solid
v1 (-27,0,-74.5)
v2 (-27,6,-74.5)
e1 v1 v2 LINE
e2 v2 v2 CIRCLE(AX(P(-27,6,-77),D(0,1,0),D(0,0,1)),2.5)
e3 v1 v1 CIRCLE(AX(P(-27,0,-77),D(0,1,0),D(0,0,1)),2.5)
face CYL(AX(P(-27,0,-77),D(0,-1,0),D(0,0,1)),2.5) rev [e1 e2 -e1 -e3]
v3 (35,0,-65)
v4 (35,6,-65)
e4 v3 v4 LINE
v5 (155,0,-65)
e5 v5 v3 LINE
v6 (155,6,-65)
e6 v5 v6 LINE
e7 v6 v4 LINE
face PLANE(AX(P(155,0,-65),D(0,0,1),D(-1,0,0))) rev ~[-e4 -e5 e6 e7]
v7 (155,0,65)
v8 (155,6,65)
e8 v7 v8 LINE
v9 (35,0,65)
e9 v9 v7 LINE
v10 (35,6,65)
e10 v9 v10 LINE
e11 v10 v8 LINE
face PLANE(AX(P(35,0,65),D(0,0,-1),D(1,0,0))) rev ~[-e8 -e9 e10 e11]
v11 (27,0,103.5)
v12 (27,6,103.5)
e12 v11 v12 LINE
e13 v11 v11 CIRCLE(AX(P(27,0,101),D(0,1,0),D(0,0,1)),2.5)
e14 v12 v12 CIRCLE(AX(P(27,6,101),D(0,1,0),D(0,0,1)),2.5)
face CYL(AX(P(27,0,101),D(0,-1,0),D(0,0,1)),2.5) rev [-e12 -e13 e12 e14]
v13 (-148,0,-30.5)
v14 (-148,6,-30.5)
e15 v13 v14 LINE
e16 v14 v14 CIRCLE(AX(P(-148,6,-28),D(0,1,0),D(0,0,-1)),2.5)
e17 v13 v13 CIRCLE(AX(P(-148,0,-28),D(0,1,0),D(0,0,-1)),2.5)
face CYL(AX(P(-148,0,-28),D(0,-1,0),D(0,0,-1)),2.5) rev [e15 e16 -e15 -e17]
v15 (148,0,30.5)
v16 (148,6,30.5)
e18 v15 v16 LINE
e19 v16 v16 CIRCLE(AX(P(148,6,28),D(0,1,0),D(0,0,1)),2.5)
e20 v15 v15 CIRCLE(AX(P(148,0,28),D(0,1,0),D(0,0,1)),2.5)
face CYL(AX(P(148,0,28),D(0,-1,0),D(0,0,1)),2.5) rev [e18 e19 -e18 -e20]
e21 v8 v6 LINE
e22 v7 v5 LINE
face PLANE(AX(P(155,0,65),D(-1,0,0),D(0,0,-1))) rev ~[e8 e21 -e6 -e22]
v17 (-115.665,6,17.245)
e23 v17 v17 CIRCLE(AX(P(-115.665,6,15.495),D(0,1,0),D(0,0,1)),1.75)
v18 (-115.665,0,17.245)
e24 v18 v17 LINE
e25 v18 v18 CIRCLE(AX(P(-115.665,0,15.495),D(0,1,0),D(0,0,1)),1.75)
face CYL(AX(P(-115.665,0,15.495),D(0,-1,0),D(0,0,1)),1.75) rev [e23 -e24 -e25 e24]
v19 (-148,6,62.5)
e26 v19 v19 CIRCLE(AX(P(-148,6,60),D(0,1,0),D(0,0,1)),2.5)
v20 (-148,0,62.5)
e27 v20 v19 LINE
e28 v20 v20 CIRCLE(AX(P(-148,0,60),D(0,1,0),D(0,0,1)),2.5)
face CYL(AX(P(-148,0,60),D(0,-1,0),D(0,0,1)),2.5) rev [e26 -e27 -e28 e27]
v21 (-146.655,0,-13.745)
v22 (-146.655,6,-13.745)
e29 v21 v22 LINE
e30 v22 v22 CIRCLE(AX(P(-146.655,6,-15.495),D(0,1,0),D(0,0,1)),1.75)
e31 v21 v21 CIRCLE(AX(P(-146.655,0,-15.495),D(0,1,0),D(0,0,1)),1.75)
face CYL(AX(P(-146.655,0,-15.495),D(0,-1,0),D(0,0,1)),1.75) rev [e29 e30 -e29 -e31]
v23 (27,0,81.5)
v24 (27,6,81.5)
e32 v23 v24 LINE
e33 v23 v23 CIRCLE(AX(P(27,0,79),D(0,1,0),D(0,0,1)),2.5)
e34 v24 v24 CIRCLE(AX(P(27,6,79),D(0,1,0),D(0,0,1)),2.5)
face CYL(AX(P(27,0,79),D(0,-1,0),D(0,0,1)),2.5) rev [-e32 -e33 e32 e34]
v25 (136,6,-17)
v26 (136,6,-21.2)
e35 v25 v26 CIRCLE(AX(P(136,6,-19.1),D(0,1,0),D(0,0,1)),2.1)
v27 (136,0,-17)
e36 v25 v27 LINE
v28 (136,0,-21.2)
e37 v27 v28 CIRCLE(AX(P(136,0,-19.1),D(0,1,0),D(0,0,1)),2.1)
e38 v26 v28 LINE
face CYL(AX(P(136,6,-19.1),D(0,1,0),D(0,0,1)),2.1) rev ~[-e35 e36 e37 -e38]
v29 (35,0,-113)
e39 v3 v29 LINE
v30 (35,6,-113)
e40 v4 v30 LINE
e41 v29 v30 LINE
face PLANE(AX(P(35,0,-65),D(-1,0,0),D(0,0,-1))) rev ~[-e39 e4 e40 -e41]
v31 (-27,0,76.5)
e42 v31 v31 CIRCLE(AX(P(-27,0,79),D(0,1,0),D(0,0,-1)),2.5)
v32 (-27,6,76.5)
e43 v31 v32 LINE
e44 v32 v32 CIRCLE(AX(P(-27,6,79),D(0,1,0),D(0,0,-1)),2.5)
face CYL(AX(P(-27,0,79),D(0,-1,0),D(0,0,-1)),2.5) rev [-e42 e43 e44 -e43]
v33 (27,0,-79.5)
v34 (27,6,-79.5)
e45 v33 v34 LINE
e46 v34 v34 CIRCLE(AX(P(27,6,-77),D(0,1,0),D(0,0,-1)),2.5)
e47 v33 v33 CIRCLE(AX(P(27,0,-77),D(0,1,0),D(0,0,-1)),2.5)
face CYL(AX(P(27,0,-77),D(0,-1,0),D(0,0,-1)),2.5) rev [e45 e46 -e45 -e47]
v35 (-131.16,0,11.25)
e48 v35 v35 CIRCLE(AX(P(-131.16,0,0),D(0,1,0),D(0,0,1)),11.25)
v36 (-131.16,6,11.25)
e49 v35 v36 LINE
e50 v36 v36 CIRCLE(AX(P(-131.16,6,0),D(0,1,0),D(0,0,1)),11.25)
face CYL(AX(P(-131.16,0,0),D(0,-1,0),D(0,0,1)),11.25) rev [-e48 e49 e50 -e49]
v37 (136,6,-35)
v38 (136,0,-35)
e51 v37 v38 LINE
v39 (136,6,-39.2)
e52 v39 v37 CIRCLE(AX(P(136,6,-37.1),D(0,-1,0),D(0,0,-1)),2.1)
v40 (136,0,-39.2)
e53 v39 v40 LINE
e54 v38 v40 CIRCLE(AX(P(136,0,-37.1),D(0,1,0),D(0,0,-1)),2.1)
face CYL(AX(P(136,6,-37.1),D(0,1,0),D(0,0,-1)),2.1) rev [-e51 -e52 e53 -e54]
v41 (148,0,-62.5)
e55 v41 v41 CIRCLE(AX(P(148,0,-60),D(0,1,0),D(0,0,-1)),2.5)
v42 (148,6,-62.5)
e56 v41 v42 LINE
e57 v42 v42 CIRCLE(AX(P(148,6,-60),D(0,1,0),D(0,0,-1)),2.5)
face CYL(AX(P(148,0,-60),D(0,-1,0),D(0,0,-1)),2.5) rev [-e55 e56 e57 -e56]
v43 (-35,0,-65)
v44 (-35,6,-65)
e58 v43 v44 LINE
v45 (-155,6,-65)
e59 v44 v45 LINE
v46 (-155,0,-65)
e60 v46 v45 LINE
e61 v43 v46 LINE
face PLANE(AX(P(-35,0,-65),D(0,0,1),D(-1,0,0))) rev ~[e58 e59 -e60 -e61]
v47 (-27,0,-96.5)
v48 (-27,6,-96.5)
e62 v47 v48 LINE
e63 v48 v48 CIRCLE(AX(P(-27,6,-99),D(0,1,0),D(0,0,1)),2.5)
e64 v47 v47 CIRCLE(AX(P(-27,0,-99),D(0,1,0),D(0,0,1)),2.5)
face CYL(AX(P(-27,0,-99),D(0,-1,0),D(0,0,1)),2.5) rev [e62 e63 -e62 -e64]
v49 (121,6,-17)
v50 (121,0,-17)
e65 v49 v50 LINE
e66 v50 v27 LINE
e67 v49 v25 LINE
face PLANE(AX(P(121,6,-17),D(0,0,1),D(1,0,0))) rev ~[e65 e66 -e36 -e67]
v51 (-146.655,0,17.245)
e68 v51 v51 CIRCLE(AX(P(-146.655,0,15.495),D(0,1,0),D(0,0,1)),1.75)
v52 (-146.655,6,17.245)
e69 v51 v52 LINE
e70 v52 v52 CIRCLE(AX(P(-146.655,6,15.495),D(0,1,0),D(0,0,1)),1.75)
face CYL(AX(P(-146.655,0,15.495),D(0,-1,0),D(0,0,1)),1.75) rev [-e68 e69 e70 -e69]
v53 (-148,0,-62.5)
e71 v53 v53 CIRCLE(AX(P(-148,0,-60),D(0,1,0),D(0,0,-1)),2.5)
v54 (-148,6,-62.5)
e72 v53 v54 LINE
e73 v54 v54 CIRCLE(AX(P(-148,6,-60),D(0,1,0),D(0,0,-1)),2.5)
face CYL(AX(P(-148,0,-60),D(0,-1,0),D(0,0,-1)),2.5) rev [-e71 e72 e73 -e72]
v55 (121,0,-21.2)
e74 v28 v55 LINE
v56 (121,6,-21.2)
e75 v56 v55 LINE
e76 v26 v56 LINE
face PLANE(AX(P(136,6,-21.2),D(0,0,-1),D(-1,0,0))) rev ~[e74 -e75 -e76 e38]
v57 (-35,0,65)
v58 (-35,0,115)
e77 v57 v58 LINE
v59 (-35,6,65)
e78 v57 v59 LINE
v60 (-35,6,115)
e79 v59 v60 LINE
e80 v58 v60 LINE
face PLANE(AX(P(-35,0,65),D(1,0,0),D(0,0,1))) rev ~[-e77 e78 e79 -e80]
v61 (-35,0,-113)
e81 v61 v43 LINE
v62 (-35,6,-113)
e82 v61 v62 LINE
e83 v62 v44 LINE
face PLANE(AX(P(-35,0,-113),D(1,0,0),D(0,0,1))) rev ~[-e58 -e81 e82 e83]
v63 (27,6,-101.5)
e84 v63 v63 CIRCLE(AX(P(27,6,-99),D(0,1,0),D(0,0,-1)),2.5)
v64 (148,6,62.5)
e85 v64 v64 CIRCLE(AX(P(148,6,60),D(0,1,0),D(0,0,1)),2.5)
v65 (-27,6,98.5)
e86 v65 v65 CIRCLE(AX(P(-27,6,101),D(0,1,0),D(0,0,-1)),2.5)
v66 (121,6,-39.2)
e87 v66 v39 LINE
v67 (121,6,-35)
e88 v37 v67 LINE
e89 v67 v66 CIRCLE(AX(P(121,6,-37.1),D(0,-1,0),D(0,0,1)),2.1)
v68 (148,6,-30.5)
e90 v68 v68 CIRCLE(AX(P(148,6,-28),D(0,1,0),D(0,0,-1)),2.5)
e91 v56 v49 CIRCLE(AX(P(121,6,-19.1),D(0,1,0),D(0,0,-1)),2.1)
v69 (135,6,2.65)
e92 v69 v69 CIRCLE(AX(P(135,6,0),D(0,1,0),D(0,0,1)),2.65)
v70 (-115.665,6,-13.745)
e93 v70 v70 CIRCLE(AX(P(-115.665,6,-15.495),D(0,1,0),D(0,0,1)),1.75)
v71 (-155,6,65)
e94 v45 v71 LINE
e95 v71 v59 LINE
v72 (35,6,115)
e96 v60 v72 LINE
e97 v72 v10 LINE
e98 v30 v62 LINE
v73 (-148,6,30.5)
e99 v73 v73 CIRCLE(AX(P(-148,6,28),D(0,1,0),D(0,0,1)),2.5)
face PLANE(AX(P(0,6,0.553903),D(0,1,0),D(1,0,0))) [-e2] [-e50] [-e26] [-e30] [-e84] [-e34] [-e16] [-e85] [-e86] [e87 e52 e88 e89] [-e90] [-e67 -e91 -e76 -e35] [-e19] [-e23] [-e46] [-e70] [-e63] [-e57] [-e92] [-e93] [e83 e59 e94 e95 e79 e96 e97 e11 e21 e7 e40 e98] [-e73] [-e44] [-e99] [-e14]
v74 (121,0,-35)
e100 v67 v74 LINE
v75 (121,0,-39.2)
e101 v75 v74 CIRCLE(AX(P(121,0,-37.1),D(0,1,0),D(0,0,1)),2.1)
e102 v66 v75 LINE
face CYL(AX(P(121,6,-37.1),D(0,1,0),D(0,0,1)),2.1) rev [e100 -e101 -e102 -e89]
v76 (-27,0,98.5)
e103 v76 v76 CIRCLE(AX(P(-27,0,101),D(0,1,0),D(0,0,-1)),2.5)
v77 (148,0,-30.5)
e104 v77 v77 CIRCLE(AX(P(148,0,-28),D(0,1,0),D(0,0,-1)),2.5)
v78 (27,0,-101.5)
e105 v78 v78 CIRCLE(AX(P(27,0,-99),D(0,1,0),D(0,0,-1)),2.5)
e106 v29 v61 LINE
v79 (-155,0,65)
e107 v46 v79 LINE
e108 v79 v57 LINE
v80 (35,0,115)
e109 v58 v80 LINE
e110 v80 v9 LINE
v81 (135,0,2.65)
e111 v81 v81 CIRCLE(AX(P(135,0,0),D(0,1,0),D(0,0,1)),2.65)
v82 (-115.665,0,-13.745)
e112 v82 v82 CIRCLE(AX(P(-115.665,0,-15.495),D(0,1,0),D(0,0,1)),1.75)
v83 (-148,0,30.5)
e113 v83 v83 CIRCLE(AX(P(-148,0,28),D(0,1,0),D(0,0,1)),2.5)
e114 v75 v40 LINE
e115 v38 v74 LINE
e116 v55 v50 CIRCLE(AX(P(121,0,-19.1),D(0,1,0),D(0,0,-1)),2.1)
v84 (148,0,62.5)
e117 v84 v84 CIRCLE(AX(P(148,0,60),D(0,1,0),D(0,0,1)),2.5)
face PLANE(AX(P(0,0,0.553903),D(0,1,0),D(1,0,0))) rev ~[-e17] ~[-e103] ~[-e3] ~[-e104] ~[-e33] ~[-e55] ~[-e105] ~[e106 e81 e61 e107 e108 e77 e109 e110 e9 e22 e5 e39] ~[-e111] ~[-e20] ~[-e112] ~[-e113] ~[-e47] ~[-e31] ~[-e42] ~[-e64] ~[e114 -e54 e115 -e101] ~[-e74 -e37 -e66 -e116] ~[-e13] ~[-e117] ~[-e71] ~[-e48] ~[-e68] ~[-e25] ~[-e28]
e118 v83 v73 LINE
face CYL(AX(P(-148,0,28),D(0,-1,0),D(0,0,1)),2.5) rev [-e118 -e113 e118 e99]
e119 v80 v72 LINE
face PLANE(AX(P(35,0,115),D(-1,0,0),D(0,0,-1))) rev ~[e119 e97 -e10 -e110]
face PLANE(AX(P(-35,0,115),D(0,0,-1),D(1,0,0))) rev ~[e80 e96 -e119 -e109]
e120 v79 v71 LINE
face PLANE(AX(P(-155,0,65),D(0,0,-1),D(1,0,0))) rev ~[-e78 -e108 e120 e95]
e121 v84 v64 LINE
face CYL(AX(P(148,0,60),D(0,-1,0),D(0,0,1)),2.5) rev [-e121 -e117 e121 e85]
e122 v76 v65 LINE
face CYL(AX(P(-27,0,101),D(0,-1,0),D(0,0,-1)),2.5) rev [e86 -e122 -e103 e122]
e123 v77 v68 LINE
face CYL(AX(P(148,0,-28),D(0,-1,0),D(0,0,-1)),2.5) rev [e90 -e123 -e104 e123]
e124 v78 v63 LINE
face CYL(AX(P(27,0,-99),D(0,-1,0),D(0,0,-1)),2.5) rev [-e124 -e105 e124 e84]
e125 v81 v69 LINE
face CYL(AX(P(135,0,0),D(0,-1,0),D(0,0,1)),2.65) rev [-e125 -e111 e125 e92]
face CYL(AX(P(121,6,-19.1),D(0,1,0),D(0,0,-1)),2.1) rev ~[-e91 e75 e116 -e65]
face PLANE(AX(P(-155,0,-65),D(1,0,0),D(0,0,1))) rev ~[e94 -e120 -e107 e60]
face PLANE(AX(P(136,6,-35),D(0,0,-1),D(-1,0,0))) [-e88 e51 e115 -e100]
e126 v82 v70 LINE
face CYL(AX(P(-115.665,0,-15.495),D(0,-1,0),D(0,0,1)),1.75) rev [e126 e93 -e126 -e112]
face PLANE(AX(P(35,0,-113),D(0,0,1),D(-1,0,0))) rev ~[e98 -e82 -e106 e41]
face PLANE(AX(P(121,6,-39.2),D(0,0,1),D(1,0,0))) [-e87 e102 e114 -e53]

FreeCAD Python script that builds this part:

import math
import FreeCAD as App
import Part
import Sketcher

V = App.Vector
Q = App.Units.Quantity

doc = App.newDocument("Part")
body = doc.addObject("PartDesign::Body", "Body")

# Sketch on XZ plane
sketch1 = doc.addObject("Sketcher::SketchObject", "Sketch")
body.addObject(sketch1)
sketch1.AttachmentSupport = (doc.XZ_Plane, [""])
sketch1.MapMode = "FlatFace"
sketch1.addGeometry(Part.LineSegment(V(-155, 65, 0), V(-35, 65, 0)), False)
sketch1.addGeometry(Part.LineSegment(V(-35, 65, 0), V(-35, 115, 0)), False)
sketch1.addGeometry(Part.LineSegment(V(-35, 115, 0), V(35, 115, 0)), False)
sketch1.addGeometry(Part.LineSegment(V(35, 115, 0), V(35, 65, 0)), False)
sketch1.addGeometry(Part.LineSegment(V(35, 65, 0), V(155, 65, 0)), False)
sketch1.addGeometry(Part.LineSegment(V(155, 65, 0), V(155, -65, 0)), False)
sketch1.addGeometry(Part.LineSegment(V(155, -65, 0), V(35, -65, 0)), False)
sketch1.addGeometry(Part.LineSegment(V(35, -65, 0), V(35, -113, 0)), False)
sketch1.addGeometry(Part.LineSegment(V(35, -113, 0), V(-35, -113, 0)), False)
sketch1.addGeometry(Part.LineSegment(V(-35, -113, 0), V(-35, -65, 0)), False)
sketch1.addGeometry(Part.LineSegment(V(-35, -65, 0), V(-155, -65, 0)), False)
sketch1.addGeometry(Part.LineSegment(V(-155, -65, 0), V(-155, 65, 0)), False)
sketch1.addGeometry(Part.Circle(V(-148, 60, 0), V(0, 0, 1), 2.5), False)
sketch1.addGeometry(Part.Circle(V(-27, 101, 0), V(0, 0, 1), 2.5), False)
sketch1.addGeometry(Part.Circle(V(-27, 79, 0), V(0, 0, 1), 2.5), False)
sketch1.addGeometry(Part.Circle(V(-148, 28, 0), V(0, 0, 1), 2.5), False)
sketch1.addGeometry(Part.Circle(V(-146.655, 15.495, 0), V(0, 0, 1), 1.75), False)
sketch1.addGeometry(Part.Circle(V(-115.665, 15.495, 0), V(0, 0, 1), 1.75), False)
sketch1.addGeometry(Part.Circle(V(27, 101, 0), V(0, 0, 1), 2.5), False)
sketch1.addGeometry(Part.Circle(V(27, 79, 0), V(0, 0, 1), 2.5), False)
sketch1.addGeometry(Part.Circle(V(148, 60, 0), V(0, 0, 1), 2.5), False)
sketch1.addGeometry(Part.Circle(V(148, 28, 0), V(0, 0, 1), 2.5), False)
sketch1.addGeometry(Part.Circle(V(-131.16, 0, 0), V(0, 0, 1), 11.25), False)
sketch1.addGeometry(Part.Circle(V(-146.655, -15.495, 0), V(0, 0, 1), 1.75), False)
sketch1.addGeometry(Part.Circle(V(-115.665, -15.495, 0), V(0, 0, 1), 1.75), False)
sketch1.addGeometry(Part.Circle(V(-148, -28, 0), V(0, 0, 1), 2.5), False)
sketch1.addGeometry(Part.Circle(V(-148, -60, 0), V(0, 0, 1), 2.5), False)
sketch1.addGeometry(Part.Circle(V(-27, -77, 0), V(0, 0, 1), 2.5), False)
sketch1.addGeometry(Part.Circle(V(-27, -99, 0), V(0, 0, 1), 2.5), False)
sketch1.addGeometry(Part.Circle(V(135, 0, 0), V(0, 0, 1), 2.65), False)
sketch1.addGeometry(Part.Circle(V(148, -28, 0), V(0, 0, 1), 2.5), False)
sketch1.addGeometry(Part.Circle(V(27, -77, 0), V(0, 0, 1), 2.5), False)
sketch1.addGeometry(Part.Circle(V(27, -99, 0), V(0, 0, 1), 2.5), False)
sketch1.addGeometry(Part.Circle(V(148, -60, 0), V(0, 0, 1), 2.5), False)
sketch1.addConstraint(Sketcher.Constraint("Coincident", 0, 2, 1, 1))
sketch1.addConstraint(Sketcher.Constraint("Coincident", 1, 2, 2, 1))
sketch1.addConstraint(Sketcher.Constraint("Coincident", 2, 2, 3, 1))
sketch1.addConstraint(Sketcher.Constraint("Coincident", 3, 2, 4, 1))
sketch1.addConstraint(Sketcher.Constraint("Coincident", 4, 2, 5, 1))
sketch1.addConstraint(Sketcher.Constraint("Coincident", 5, 2, 6, 1))
sketch1.addConstraint(Sketcher.Constraint("Coincident", 6, 2, 7, 1))
sketch1.addConstraint(Sketcher.Constraint("Coincident", 7, 2, 8, 1))
sketch1.addConstraint(Sketcher.Constraint("Coincident", 8, 2, 9, 1))
sketch1.addConstraint(Sketcher.Constraint("Coincident", 9, 2, 10, 1))
sketch1.addConstraint(Sketcher.Constraint("Coincident", 10, 2, 11, 1))
sketch1.addConstraint(Sketcher.Constraint("Coincident", 11, 2, 0, 1))
sketch1.addConstraint(Sketcher.Constraint("Horizontal", 0))
sketch1.addConstraint(Sketcher.Constraint("Vertical", 1))
sketch1.addConstraint(Sketcher.Constraint("Horizontal", 2))
sketch1.addConstraint(Sketcher.Constraint("Vertical", 3))
sketch1.addConstraint(Sketcher.Constraint("Horizontal", 4))
sketch1.addConstraint(Sketcher.Constraint("Vertical", 5))
sketch1.addConstraint(Sketcher.Constraint("Horizontal", 6))
sketch1.addConstraint(Sketcher.Constraint("Vertical", 7))
sketch1.addConstraint(Sketcher.Constraint("Horizontal", 8))
sketch1.addConstraint(Sketcher.Constraint("Vertical", 9))
sketch1.addConstraint(Sketcher.Constraint("Horizontal", 10))
sketch1.addConstraint(Sketcher.Constraint("Vertical", 11))
sketch1.addConstraint(Sketcher.Constraint("Equal", 12, 13))
sketch1.addConstraint(Sketcher.Constraint("Equal", 13, 14))
sketch1.addConstraint(Sketcher.Constraint("Equal", 14, 15))
sketch1.addConstraint(Sketcher.Constraint("Equal", 16, 17))
sketch1.addConstraint(Sketcher.Constraint("Equal", 15, 18))
sketch1.addConstraint(Sketcher.Constraint("Equal", 18, 19))
sketch1.addConstraint(Sketcher.Constraint("Equal", 19, 20))
sketch1.addConstraint(Sketcher.Constraint("Equal", 20, 21))
sketch1.addConstraint(Sketcher.Constraint("Equal", 17, 23))
sketch1.addConstraint(Sketcher.Constraint("Equal", 23, 24))
sketch1.addConstraint(Sketcher.Constraint("Equal", 21, 25))
sketch1.addConstraint(Sketcher.Constraint("Equal", 25, 26))
sketch1.addConstraint(Sketcher.Constraint("Equal", 26, 27))
sketch1.addConstraint(Sketcher.Constraint("Equal", 27, 28))
sketch1.addConstraint(Sketcher.Constraint("Equal", 28, 30))
sketch1.addConstraint(Sketcher.Constraint("Equal", 30, 31))
sketch1.addConstraint(Sketcher.Constraint("Equal", 31, 32))
sketch1.addConstraint(Sketcher.Constraint("Equal", 32, 33))
sketch1.addConstraint(Sketcher.Constraint("Symmetric", 21, 3, 25, 3, -1, 1))
sketch1.addConstraint(Sketcher.Constraint("Symmetric", 20, 3, 26, 3, -1, 1))
sketch1.addConstraint(Sketcher.Constraint("Symmetric", 15, 3, 30, 3, -1, 1))
sketch1.addConstraint(Sketcher.Constraint("Symmetric", 12, 3, 33, 3, -1, 1))
sketch1.addConstraint(Sketcher.Constraint("Symmetric", 0, 2, 6, 2, -1, 1))
sketch1.addConstraint(Sketcher.Constraint("Symmetric", 3, 2, 9, 2, -1, 1))
sketch1.addConstraint(Sketcher.Constraint("Symmetric", 13, 3, 18, 3, -2))
sketch1.addConstraint(Sketcher.Constraint("Symmetric", 14, 3, 19, 3, -2))
sketch1.addConstraint(Sketcher.Constraint("Symmetric", 12, 3, 20, 3, -2))
sketch1.addConstraint(Sketcher.Constraint("Symmetric", 15, 3, 21, 3, -2))
sketch1.addConstraint(Sketcher.Constraint("Symmetric", 27, 3, 31, 3, -2))
sketch1.addConstraint(Sketcher.Constraint("Symmetric", 28, 3, 32, 3, -2))
sketch1.addConstraint(Sketcher.Constraint("Symmetric", 0, 2, 3, 2, -2))
sketch1.addConstraint(Sketcher.Constraint("Symmetric", 16, 3, 23, 3, -1))
sketch1.addConstraint(Sketcher.Constraint("Symmetric", 17, 3, 24, 3, -1))
sketch1.addConstraint(Sketcher.Constraint("PointOnObject", 22, 3, -1))
sketch1.addConstraint(Sketcher.Constraint("PointOnObject", 29, 3, -1))
sketch1.addConstraint(Sketcher.Constraint("Horizontal", 16, 3, 17, 3))
sketch1.addConstraint(Sketcher.Constraint("Vertical", 13, 3, 14, 3))
sketch1.addConstraint(Sketcher.Constraint("Vertical", 12, 3, 15, 3))
sketch1.addConstraint(Sketcher.Constraint("Vertical", 14, 3, 27, 3))
sketch1.addConstraint(Sketcher.Constraint("Vertical", 27, 3, 28, 3))
sketch1.addConstraint(Sketcher.Constraint("Equal", 0, 4))
sketch1.addConstraint(Sketcher.Constraint("Diameter", 12, Q("5 mm")))
sketch1.addConstraint(Sketcher.Constraint("Diameter", 16, Q("3.5 mm")))
sketch1.addConstraint(Sketcher.Constraint("Diameter", 22, Q("22.5 mm")))
sketch1.addConstraint(Sketcher.Constraint("Diameter", 29, Q("5.3 mm")))
sketch1.addConstraint(Sketcher.Constraint("DistanceX", 0, 1, 0, 2, Q("120 mm")))
sketch1.addConstraint(Sketcher.Constraint("DistanceX", 2, 1, 2, 2, Q("70 mm")))
sketch1.addConstraint(Sketcher.Constraint("DistanceY", 1, 1, 1, 2, Q("50 mm")))
sketch1.addConstraint(Sketcher.Constraint("DistanceY", 5, 2, 5, 1, Q("130 mm")))
sketch1.addConstraint(Sketcher.Constraint("DistanceY", 7, 2, 7, 1, Q("48 mm")))
sketch1.addConstraint(Sketcher.Constraint("DistanceX", 12, 3, -1, 1, Q("148 mm")))
sketch1.addConstraint(Sketcher.Constraint("DistanceY", -1, 1, 12, 3, Q("60 mm")))
sketch1.addConstraint(Sketcher.Constraint("DistanceX", 13, 3, -1, 1, Q("27 mm")))
sketch1.addConstraint(Sketcher.Constraint("DistanceY", -1, 1, 13, 3, Q("101 mm")))
sketch1.addConstraint(Sketcher.Constraint("DistanceY", -1, 1, 14, 3, Q("79 mm")))
sketch1.addConstraint(Sketcher.Constraint("DistanceY", -1, 1, 15, 3, Q("28 mm")))
sketch1.addConstraint(Sketcher.Constraint("DistanceY", 27, 3, -1, 1, Q("77 mm")))
sketch1.addConstraint(Sketcher.Constraint("DistanceY", 28, 3, -1, 1, Q("99 mm")))
sketch1.addConstraint(Sketcher.Constraint("DistanceX", -1, 1, 29, 3, Q("135 mm")))
sketch1.addConstraint(Sketcher.Constraint("DistanceX", 22, 3, -1, 1, Q("131.16 mm")))
sketch1.addConstraint(Sketcher.Constraint("DistanceX", 16, 3, 17, 3, Q("30.99 mm")))
sketch1.addConstraint(Sketcher.Constraint("DistanceY", 23, 3, 16, 3, Q("30.99 mm")))
sketch1.addConstraint(Sketcher.Constraint("DistanceX", 16, 3, -1, 1, Q("146.655 mm")))
pad1 = doc.addObject("PartDesign::Pad", "Pad")
body.addObject(pad1)
pad1.Profile = sketch1
pad1.Length = 6
pad1.Reversed = True

# Sketch on XZ plane
sketch2 = doc.addObject("Sketcher::SketchObject", "Sketch001")
body.addObject(sketch2)
sketch2.AttachmentSupport = (doc.XZ_Plane, [""])
sketch2.MapMode = "FlatFace"
sketch2.AttachmentOffset = App.Placement(V(0, 0, -6), App.Rotation())
sketch2.addGeometry(Part.LineSegment(V(121, -35, 0), V(136, -35, 0)), False)
sketch2.addGeometry(Part.ArcOfCircle(Part.Circle(V(136, -37.1, 0), V(0, 0, 1), 2.1), math.radians(-90), math.radians(90)), False)
sketch2.addGeometry(Part.LineSegment(V(136, -39.2, 0), V(121, -39.2, 0)), False)
sketch2.addGeometry(Part.ArcOfCircle(Part.Circle(V(121, -37.1, 0), V(0, 0, 1), 2.1), math.radians(90), math.radians(270)), False)
sketch2.addGeometry(Part.LineSegment(V(136, -21.2, 0), V(121, -21.2, 0)), False)
sketch2.addGeometry(Part.ArcOfCircle(Part.Circle(V(121, -19.1, 0), V(0, 0, 1), 2.1), math.radians(90), math.radians(270)), False)
sketch2.addGeometry(Part.LineSegment(V(121, -17, 0), V(136, -17, 0)), False)
sketch2.addGeometry(Part.ArcOfCircle(Part.Circle(V(136, -19.1, 0), V(0, 0, 1), 2.1), math.radians(-90), math.radians(90)), False)
sketch2.addConstraint(Sketcher.Constraint("Tangent", 0, 2, 1, 2))
sketch2.addConstraint(Sketcher.Constraint("Tangent", 1, 1, 2, 1))
sketch2.addConstraint(Sketcher.Constraint("Tangent", 2, 2, 3, 2))
sketch2.addConstraint(Sketcher.Constraint("Tangent", 3, 1, 0, 1))
sketch2.addConstraint(Sketcher.Constraint("Tangent", 4, 2, 5, 2))
sketch2.addConstraint(Sketcher.Constraint("Tangent", 5, 1, 6, 1))
sketch2.addConstraint(Sketcher.Constraint("Tangent", 6, 2, 7, 2))
sketch2.addConstraint(Sketcher.Constraint("Tangent", 7, 1, 4, 1))
sketch2.addConstraint(Sketcher.Constraint("Horizontal", 0))
sketch2.addConstraint(Sketcher.Constraint("Horizontal", 2))
sketch2.addConstraint(Sketcher.Constraint("Horizontal", 4))
sketch2.addConstraint(Sketcher.Constraint("Horizontal", 6))
sketch2.addConstraint(Sketcher.Constraint("Equal", 3, 5))
sketch2.addConstraint(Sketcher.Constraint("Vertical", 3, 3, 5, 3))
sketch2.addConstraint(Sketcher.Constraint("Vertical", 1, 3, 7, 3))
sketch2.addConstraint(Sketcher.Constraint("Radius", 1, Q("2.1 mm")))
sketch2.addConstraint(Sketcher.Constraint("DistanceX", 0, 1, 0, 2, Q("15 mm")))
sketch2.addConstraint(Sketcher.Constraint("DistanceX", -1, 1, 1, 3, Q("136 mm")))
sketch2.addConstraint(Sketcher.Constraint("DistanceY", 0, 2, -1, 1, Q("35 mm")))
sketch2.addConstraint(Sketcher.Constraint("DistanceY", 5, 1, -1, 1, Q("17 mm")))
pocket1 = doc.addObject("PartDesign::Pocket", "Pocket")
body.addObject(pocket1)
pocket1.Profile = sketch2
pocket1.Type = "ThroughAll"
pocket1.Reversed = True

doc.recompute()
